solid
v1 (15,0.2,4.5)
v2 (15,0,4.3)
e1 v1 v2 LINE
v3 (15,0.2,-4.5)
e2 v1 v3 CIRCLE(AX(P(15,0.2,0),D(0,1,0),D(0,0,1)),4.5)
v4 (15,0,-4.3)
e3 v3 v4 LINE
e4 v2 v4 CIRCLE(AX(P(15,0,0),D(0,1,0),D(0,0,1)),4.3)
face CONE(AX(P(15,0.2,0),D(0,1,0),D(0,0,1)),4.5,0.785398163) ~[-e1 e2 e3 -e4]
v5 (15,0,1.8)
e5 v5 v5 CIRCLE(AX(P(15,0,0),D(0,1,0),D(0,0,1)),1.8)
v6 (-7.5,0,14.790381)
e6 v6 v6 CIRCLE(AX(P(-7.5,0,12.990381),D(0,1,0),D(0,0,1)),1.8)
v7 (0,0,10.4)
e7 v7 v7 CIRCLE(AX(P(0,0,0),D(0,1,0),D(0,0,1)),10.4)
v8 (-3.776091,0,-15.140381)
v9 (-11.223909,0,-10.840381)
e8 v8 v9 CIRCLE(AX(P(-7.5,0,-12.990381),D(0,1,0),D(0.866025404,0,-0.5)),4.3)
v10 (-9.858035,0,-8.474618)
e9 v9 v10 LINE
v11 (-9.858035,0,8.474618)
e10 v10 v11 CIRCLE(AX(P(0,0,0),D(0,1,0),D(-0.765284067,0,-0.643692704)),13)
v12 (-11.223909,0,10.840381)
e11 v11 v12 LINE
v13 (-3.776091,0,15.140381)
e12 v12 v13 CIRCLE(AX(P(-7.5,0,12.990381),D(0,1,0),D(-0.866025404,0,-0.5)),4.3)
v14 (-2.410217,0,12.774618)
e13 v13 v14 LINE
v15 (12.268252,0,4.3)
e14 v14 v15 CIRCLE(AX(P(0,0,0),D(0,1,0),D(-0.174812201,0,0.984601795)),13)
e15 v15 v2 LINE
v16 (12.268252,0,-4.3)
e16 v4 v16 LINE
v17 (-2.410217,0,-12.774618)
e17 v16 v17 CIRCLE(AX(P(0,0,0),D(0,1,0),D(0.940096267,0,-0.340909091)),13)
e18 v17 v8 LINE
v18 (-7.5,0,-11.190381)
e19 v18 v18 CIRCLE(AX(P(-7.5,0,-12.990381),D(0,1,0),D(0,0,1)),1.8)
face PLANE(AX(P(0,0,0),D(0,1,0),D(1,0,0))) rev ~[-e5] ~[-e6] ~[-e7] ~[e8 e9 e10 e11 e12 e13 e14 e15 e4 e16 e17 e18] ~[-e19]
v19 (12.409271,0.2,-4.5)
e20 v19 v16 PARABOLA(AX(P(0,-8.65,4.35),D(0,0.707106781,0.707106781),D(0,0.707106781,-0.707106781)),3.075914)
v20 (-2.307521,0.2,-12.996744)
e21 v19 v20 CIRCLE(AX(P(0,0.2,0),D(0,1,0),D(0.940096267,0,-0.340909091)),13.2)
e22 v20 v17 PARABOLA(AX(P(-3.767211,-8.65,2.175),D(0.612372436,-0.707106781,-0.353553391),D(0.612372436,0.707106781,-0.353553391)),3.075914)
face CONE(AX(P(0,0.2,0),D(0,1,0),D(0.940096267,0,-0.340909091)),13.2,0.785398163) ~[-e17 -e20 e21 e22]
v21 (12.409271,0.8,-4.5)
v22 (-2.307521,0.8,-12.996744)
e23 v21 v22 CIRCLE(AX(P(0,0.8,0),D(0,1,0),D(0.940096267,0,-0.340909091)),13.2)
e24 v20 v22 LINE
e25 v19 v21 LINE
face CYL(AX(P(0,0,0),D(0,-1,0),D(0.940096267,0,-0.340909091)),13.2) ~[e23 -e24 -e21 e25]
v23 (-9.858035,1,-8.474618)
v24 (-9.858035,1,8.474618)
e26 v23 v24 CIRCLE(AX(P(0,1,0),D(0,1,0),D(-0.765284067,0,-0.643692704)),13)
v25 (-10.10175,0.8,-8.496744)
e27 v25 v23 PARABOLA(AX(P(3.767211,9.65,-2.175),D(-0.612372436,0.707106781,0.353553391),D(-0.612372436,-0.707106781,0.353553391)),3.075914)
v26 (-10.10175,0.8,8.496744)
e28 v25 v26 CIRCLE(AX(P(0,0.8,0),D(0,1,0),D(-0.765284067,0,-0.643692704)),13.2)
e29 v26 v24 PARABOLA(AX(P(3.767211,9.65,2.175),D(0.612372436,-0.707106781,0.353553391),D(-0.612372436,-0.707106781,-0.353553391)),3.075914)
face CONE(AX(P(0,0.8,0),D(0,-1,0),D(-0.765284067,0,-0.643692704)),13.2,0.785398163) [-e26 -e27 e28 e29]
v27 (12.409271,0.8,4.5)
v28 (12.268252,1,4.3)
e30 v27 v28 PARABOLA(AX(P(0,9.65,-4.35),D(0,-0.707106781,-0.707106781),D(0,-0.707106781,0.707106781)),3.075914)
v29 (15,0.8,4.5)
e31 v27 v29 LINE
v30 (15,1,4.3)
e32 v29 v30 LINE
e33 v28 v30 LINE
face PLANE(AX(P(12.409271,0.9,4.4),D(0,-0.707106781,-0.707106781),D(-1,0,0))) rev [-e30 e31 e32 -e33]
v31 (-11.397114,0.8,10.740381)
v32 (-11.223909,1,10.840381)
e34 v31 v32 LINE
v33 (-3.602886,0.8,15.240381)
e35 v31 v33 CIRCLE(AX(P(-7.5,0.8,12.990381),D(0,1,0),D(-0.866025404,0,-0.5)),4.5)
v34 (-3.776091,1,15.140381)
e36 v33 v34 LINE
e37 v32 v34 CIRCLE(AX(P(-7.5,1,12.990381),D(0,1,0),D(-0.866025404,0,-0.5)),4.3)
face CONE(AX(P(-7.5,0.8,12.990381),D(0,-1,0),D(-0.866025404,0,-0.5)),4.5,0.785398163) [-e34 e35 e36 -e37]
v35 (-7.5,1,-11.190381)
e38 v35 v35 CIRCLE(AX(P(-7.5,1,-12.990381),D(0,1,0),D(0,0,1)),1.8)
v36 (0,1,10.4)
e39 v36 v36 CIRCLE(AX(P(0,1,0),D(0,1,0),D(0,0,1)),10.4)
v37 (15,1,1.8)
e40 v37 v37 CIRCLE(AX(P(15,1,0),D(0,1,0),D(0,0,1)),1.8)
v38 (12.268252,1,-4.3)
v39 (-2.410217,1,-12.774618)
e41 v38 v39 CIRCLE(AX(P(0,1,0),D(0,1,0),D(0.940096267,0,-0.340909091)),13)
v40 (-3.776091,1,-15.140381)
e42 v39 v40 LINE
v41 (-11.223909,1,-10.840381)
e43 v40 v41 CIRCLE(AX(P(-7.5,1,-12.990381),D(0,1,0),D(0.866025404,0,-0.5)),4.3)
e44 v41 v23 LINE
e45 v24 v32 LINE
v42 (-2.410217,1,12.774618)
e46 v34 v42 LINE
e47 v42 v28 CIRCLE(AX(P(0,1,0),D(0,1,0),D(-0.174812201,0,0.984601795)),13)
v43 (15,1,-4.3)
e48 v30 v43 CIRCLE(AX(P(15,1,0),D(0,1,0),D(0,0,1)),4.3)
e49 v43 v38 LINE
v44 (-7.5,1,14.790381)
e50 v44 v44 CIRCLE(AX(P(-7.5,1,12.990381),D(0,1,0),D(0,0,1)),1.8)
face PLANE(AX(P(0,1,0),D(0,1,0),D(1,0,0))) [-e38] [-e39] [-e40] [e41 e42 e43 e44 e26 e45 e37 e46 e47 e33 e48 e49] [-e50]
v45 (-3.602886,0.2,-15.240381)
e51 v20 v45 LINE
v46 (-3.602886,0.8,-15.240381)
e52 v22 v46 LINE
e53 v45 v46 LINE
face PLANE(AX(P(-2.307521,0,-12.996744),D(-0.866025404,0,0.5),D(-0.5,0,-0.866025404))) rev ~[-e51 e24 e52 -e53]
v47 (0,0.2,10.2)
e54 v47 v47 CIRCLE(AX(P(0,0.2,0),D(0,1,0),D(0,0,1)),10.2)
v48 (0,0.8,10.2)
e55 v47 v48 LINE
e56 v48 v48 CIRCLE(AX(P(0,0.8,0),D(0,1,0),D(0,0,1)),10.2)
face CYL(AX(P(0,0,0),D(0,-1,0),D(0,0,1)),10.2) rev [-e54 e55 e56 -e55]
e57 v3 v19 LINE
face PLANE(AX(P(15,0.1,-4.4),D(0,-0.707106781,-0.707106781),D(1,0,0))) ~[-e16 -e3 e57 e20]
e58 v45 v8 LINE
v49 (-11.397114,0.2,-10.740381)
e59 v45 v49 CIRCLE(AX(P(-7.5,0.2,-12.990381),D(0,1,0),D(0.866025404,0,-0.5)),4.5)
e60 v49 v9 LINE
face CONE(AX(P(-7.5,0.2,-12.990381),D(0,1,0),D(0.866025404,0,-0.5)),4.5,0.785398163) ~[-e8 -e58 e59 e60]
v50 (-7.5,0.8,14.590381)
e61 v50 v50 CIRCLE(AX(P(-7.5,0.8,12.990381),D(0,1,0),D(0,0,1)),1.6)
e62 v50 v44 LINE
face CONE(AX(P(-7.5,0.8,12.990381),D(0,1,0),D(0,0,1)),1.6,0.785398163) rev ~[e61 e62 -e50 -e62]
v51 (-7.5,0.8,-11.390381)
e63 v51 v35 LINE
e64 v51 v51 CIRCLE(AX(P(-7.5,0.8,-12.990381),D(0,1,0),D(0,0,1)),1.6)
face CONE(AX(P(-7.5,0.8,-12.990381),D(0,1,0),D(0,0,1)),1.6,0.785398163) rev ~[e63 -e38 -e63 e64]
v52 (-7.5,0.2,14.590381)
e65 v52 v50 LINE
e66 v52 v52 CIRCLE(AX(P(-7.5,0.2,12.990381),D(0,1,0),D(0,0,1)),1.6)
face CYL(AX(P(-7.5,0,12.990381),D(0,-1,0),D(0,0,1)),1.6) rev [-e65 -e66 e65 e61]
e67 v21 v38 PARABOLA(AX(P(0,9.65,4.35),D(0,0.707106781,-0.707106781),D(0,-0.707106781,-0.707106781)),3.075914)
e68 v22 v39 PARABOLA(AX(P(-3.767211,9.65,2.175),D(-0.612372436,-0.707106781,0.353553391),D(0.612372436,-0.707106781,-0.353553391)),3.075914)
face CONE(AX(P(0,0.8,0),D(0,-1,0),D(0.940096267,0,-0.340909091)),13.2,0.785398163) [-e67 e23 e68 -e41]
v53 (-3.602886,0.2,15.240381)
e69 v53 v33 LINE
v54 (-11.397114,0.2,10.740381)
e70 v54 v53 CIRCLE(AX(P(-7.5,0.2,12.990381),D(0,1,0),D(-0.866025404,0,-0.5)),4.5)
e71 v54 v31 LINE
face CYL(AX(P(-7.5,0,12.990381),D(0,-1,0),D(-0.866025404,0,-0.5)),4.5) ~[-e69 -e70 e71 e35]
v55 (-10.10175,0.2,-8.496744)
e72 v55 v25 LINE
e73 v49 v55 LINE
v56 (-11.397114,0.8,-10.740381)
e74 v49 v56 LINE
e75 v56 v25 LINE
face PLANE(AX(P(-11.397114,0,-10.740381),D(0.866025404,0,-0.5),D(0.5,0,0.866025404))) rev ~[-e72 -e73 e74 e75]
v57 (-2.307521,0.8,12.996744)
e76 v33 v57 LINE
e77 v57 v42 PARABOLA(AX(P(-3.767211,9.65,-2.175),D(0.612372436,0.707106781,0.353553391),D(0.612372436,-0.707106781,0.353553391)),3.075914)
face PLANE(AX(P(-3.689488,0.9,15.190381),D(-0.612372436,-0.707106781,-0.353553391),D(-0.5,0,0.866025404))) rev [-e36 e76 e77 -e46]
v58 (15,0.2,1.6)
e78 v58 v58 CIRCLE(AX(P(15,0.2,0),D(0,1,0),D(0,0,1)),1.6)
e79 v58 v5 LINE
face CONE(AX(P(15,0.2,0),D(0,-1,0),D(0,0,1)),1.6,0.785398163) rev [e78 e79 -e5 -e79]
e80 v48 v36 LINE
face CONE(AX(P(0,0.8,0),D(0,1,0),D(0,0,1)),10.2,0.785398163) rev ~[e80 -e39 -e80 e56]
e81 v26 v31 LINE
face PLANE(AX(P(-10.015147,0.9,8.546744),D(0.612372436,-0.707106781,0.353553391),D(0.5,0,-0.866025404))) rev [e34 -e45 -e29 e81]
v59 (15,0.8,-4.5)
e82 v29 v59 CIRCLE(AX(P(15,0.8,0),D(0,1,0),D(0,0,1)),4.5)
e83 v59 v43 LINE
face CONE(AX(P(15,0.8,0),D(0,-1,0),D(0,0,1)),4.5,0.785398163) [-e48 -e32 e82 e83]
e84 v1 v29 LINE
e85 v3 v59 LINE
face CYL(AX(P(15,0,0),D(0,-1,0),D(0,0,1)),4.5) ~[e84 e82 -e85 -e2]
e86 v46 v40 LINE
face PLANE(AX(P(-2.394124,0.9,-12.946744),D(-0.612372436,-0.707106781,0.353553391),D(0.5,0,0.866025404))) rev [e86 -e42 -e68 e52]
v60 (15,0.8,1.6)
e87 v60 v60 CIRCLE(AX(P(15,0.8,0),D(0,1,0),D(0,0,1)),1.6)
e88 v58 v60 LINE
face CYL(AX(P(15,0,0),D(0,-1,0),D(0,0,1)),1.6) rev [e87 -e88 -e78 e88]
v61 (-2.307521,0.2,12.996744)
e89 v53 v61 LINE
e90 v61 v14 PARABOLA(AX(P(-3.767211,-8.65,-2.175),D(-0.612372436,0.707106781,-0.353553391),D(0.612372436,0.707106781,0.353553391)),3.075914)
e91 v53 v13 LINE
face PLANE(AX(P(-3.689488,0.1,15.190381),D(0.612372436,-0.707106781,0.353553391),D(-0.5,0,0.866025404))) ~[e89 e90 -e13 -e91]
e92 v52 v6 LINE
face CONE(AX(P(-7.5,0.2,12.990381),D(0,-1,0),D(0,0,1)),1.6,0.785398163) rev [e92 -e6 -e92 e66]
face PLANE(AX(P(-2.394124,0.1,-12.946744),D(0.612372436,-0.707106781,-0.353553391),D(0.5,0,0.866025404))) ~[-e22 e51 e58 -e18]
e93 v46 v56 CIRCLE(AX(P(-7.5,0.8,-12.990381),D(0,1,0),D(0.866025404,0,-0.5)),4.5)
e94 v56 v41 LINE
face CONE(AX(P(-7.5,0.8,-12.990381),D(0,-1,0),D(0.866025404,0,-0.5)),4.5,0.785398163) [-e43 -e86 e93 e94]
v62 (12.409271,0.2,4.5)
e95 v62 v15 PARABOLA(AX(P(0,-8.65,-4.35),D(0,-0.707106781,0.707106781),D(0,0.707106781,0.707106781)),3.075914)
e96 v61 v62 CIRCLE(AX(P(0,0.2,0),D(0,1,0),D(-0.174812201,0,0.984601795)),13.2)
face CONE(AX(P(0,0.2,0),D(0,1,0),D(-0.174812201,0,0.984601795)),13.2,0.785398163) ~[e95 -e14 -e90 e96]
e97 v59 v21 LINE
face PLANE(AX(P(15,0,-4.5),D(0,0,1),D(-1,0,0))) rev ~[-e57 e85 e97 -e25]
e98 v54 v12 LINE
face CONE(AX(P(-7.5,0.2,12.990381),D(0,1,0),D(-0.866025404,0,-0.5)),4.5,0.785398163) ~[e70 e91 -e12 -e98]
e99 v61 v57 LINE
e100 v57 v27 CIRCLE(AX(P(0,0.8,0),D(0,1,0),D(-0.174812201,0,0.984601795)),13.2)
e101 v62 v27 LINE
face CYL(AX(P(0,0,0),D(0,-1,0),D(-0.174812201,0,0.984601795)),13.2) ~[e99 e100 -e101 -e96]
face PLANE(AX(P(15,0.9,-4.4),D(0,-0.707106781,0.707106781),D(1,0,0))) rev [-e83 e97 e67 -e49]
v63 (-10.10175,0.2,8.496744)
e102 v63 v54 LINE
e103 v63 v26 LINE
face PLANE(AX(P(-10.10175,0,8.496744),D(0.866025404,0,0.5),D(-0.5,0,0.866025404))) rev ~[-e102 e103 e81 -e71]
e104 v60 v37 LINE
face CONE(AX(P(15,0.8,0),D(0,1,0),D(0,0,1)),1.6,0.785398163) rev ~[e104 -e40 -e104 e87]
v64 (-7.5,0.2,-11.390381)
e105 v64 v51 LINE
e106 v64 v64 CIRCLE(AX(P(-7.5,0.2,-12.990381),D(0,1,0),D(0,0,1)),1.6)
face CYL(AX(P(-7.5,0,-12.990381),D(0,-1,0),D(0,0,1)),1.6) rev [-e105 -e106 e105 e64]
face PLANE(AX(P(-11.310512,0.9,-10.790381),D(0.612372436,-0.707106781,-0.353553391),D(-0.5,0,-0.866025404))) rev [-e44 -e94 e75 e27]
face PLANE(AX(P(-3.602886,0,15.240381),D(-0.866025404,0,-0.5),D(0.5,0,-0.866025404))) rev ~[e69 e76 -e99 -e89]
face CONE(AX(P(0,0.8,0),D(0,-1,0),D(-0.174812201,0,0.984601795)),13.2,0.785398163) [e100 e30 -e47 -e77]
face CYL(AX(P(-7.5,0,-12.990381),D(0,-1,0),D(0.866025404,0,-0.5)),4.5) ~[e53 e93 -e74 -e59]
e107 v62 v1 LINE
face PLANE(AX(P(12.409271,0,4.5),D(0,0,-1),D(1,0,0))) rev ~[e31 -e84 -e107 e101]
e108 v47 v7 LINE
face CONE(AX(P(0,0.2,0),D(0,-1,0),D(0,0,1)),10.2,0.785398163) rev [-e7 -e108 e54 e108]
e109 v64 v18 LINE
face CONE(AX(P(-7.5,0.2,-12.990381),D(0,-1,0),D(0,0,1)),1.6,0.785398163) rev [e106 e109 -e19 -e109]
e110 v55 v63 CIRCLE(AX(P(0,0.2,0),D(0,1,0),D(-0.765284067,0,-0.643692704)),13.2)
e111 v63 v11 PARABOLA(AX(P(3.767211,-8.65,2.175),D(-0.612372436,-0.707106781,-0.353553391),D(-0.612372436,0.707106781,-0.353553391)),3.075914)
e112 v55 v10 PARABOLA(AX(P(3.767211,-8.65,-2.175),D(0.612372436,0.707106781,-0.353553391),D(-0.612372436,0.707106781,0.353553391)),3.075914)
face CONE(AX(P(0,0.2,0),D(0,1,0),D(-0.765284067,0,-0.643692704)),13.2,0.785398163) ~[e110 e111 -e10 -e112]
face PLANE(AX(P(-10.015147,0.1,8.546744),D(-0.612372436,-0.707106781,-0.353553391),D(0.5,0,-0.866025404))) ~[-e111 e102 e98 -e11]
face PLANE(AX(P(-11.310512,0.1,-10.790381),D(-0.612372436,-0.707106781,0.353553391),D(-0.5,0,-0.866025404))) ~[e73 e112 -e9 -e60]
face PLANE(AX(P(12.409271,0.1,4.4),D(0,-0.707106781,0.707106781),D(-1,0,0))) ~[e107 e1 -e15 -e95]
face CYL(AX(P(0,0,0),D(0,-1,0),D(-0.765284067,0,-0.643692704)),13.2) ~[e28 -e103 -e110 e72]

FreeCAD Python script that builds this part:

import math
import FreeCAD as App
import Part
import Sketcher
Q = App.Units.Quantity


def edges_at(feature, points):
    """Names of the edges that pass closest to the given points."""
    edges = feature.Shape.Edges
    near = lambda p: min(range(len(edges)), key=lambda i: edges[i].distToShape(Part.Vertex(*p))[0])
    return sorted({f"Edge{near(p) + 1}" for p in points})

doc = App.newDocument("Part")
params = doc.addObject("Spreadsheet::Sheet", "Params")
for row, (alias, value) in enumerate([
    ("sketch1_diameter", "3.2 mm"),
    ("sketch1_diameter2", "20.4 mm"),
    ("sketch1_radius", "13.2 mm"),
    ("sketch1_radius2", "4.5 mm"),
    ("pad1_length", "1 mm"),
    ("chamfer_size", "0.2 mm"),
], start=1):
    params.set(f"A{row}", alias)
    params.set(f"B{row}", "=" + value)
    params.setAlias(f"B{row}", alias)

body = doc.addObject("PartDesign::Body", "Body")

sketch1 = body.newObject("Sketcher::SketchObject", "Sketch")
sketch1.AttachmentSupport = (doc.getObject("XZ_Plane"), [""])
sketch1.MapMode = "FlatFace"
sketch1.addGeometry([
    Part.ArcOfCircle(Part.Circle(App.Vector(0, 0, 0), App.Vector(0, 0, 1), 13.2), math.radians(20), math.radians(100)),
    Part.LineSegment(App.Vector(12.4, 4.5, 0), App.Vector(15, 4.5, 0)),
    Part.ArcOfCircle(Part.Circle(App.Vector(15, 0, 0), App.Vector(0, 0, 1), 4.5), math.radians(-90), math.radians(90)),
    Part.LineSegment(App.Vector(15, -4.5, 0), App.Vector(12.4, -4.5, 0)),
    Part.ArcOfCircle(Part.Circle(App.Vector(0, 0, 0), App.Vector(0, 0, 1), 13.2), math.radians(-100), math.radians(-20)),
    Part.LineSegment(App.Vector(-2.3, -13, 0), App.Vector(-3.6, -15.2, 0)),
    Part.ArcOfCircle(Part.Circle(App.Vector(-7.5, -13, 0), App.Vector(0, 0, 1), 4.5), math.radians(150), math.radians(330)),
    Part.LineSegment(App.Vector(-11.4, -10.7, 0), App.Vector(-10.1, -8.5, 0)),
    Part.ArcOfCircle(Part.Circle(App.Vector(0, 0, 0), App.Vector(0, 0, 1), 13.2), math.radians(140), math.radians(220)),
    Part.LineSegment(App.Vector(-10.1, 8.5, 0), App.Vector(-11.4, 10.7, 0)),
    Part.ArcOfCircle(Part.Circle(App.Vector(-7.5, 13, 0), App.Vector(0, 0, 1), 4.5), math.radians(30), math.radians(210)),
    Part.LineSegment(App.Vector(-3.6, 15.2, 0), App.Vector(-2.3, 13, 0)),
    Part.Circle(App.Vector(-7.5, 13, 0), App.Vector(0, 0, 1), 1.6),
    Part.Circle(App.Vector(15, 0, 0), App.Vector(0, 0, 1), 1.6),
    Part.Circle(App.Vector(0, 0, 0), App.Vector(0, 0, 1), 10.2),
    Part.Circle(App.Vector(-7.5, -13, 0), App.Vector(0, 0, 1), 1.6),
], False)
sketch1.addConstraint([
    Sketcher.Constraint("Coincident", 0, 1, 1, 1),
    Sketcher.Constraint("Tangent", 1, 2, 2, 2),
    Sketcher.Constraint("Tangent", 2, 1, 3, 1),
    Sketcher.Constraint("Coincident", 3, 2, 4, 2),
    Sketcher.Constraint("Coincident", 4, 1, 5, 1),
    Sketcher.Constraint("Tangent", 5, 2, 6, 2),
    Sketcher.Constraint("Tangent", 6, 1, 7, 1),
    Sketcher.Constraint("Coincident", 7, 2, 8, 2),
    Sketcher.Constraint("Coincident", 8, 1, 9, 1),
    Sketcher.Constraint("Tangent", 9, 2, 10, 2),
    Sketcher.Constraint("Tangent", 10, 1, 11, 1),
    Sketcher.Constraint("Coincident", 11, 2, 0, 2),
    Sketcher.Constraint("Horizontal", 1),
    Sketcher.Constraint("Horizontal", 3),
    Sketcher.Constraint("Coincident", 0, 3, -1, 1),
    Sketcher.Constraint("Coincident", 4, 3, -1, 1),
    Sketcher.Constraint("Coincident", 8, 3, -1, 1),
    Sketcher.Constraint("Coincident", 14, 3, -1, 1),
    Sketcher.Constraint("Coincident", 12, 3, 10, 3),
    Sketcher.Constraint("Coincident", 13, 3, 2, 3),
    Sketcher.Constraint("Coincident", 15, 3, 6, 3),
    Sketcher.Constraint("Equal", 0, 4),
    Sketcher.Constraint("Equal", 2, 6),
    Sketcher.Constraint("Equal", 4, 8),
    Sketcher.Constraint("Equal", 6, 10),
    Sketcher.Constraint("Equal", 12, 13),
    Sketcher.Constraint("Equal", 13, 15),
    Sketcher.Constraint("Symmetric", 6, 3, 10, 3, -1),
    Sketcher.Constraint("PointOnObject", 2, 3, -1),
    Sketcher.Constraint("Parallel", 5, 7),
    Sketcher.Constraint("Parallel", 9, 11),
    Sketcher.Constraint("Vertical", 7, 2, 8, 1),
    Sketcher.Constraint("Equal", 5, 7),
    Sketcher.Constraint("Diameter", 12, Q("3.2 mm")),
    Sketcher.Constraint("Diameter", 14, Q("20.4 mm")),
    Sketcher.Constraint("Radius", 0, Q("13.2 mm")),
    Sketcher.Constraint("Radius", 2, Q("4.5 mm")),
    Sketcher.Constraint("Angle", 5, Q("-120 deg")),
    Sketcher.Constraint("DistanceX", -1, 1, 2, 3, Q("15 mm")),
    Sketcher.Constraint("DistanceX", 6, 3, -1, 1, Q("7.5 mm")),
])
sketch1.setExpression("Constraints[33]", "Params.sketch1_diameter")
sketch1.setExpression("Constraints[34]", "Params.sketch1_diameter2")
sketch1.setExpression("Constraints[35]", "Params.sketch1_radius")
sketch1.setExpression("Constraints[36]", "Params.sketch1_radius2")
pad1 = body.newObject("PartDesign::Pad", "Pad")
pad1.Profile = sketch1
pad1.setExpression("Length", "Params.pad1_length")
pad1.Reversed = True
doc.recompute()

chamfer = body.newObject("PartDesign::Chamfer", "Chamfer")
chamfer.Base = (pad1, edges_at(pad1, [
    (19.5, 1, 0),
    (13.705, 1, -4.5),
    (15, 0, -1.6),
    (-7.5, 0, 11.39),
    (-7.5, 0, -14.59),
    (0, 0, -10.2),
    (6.6, 0, 11.432),
    (-2.955, 0, 14.119),
    (-9.75, 0, 16.887),
    (6.6, 1, -11.432),
    (-10.749, 0, 9.619),
    (-13.2, 0, 0),
    (-10.749, 0, -9.619),
    (-9.75, 0, -16.887),
    (-2.955, 0, -14.119),
    (6.6, 0, -11.432),
    (13.705, 0, -4.5),
    (19.5, 0, 0),
    (-2.955, 1, -14.119),
    (13.705, 0, 4.5),
    (-9.75, 1, -16.887),
    (-10.749, 1, -9.619),
    (-13.2, 1, 0),
    (-10.749, 1, 9.619),
    (-9.75, 1, 16.887),
    (-2.955, 1, 14.119),
    (6.6, 1, 11.432),
    (0, 1, -10.2),
    (-7.5, 1, -14.59),
    (-7.5, 1, 11.39),
    (15, 1, -1.6),
    (13.705, 1, 4.5),
]))
chamfer.setExpression("Size", "Params.chamfer_size")

doc.recompute()
